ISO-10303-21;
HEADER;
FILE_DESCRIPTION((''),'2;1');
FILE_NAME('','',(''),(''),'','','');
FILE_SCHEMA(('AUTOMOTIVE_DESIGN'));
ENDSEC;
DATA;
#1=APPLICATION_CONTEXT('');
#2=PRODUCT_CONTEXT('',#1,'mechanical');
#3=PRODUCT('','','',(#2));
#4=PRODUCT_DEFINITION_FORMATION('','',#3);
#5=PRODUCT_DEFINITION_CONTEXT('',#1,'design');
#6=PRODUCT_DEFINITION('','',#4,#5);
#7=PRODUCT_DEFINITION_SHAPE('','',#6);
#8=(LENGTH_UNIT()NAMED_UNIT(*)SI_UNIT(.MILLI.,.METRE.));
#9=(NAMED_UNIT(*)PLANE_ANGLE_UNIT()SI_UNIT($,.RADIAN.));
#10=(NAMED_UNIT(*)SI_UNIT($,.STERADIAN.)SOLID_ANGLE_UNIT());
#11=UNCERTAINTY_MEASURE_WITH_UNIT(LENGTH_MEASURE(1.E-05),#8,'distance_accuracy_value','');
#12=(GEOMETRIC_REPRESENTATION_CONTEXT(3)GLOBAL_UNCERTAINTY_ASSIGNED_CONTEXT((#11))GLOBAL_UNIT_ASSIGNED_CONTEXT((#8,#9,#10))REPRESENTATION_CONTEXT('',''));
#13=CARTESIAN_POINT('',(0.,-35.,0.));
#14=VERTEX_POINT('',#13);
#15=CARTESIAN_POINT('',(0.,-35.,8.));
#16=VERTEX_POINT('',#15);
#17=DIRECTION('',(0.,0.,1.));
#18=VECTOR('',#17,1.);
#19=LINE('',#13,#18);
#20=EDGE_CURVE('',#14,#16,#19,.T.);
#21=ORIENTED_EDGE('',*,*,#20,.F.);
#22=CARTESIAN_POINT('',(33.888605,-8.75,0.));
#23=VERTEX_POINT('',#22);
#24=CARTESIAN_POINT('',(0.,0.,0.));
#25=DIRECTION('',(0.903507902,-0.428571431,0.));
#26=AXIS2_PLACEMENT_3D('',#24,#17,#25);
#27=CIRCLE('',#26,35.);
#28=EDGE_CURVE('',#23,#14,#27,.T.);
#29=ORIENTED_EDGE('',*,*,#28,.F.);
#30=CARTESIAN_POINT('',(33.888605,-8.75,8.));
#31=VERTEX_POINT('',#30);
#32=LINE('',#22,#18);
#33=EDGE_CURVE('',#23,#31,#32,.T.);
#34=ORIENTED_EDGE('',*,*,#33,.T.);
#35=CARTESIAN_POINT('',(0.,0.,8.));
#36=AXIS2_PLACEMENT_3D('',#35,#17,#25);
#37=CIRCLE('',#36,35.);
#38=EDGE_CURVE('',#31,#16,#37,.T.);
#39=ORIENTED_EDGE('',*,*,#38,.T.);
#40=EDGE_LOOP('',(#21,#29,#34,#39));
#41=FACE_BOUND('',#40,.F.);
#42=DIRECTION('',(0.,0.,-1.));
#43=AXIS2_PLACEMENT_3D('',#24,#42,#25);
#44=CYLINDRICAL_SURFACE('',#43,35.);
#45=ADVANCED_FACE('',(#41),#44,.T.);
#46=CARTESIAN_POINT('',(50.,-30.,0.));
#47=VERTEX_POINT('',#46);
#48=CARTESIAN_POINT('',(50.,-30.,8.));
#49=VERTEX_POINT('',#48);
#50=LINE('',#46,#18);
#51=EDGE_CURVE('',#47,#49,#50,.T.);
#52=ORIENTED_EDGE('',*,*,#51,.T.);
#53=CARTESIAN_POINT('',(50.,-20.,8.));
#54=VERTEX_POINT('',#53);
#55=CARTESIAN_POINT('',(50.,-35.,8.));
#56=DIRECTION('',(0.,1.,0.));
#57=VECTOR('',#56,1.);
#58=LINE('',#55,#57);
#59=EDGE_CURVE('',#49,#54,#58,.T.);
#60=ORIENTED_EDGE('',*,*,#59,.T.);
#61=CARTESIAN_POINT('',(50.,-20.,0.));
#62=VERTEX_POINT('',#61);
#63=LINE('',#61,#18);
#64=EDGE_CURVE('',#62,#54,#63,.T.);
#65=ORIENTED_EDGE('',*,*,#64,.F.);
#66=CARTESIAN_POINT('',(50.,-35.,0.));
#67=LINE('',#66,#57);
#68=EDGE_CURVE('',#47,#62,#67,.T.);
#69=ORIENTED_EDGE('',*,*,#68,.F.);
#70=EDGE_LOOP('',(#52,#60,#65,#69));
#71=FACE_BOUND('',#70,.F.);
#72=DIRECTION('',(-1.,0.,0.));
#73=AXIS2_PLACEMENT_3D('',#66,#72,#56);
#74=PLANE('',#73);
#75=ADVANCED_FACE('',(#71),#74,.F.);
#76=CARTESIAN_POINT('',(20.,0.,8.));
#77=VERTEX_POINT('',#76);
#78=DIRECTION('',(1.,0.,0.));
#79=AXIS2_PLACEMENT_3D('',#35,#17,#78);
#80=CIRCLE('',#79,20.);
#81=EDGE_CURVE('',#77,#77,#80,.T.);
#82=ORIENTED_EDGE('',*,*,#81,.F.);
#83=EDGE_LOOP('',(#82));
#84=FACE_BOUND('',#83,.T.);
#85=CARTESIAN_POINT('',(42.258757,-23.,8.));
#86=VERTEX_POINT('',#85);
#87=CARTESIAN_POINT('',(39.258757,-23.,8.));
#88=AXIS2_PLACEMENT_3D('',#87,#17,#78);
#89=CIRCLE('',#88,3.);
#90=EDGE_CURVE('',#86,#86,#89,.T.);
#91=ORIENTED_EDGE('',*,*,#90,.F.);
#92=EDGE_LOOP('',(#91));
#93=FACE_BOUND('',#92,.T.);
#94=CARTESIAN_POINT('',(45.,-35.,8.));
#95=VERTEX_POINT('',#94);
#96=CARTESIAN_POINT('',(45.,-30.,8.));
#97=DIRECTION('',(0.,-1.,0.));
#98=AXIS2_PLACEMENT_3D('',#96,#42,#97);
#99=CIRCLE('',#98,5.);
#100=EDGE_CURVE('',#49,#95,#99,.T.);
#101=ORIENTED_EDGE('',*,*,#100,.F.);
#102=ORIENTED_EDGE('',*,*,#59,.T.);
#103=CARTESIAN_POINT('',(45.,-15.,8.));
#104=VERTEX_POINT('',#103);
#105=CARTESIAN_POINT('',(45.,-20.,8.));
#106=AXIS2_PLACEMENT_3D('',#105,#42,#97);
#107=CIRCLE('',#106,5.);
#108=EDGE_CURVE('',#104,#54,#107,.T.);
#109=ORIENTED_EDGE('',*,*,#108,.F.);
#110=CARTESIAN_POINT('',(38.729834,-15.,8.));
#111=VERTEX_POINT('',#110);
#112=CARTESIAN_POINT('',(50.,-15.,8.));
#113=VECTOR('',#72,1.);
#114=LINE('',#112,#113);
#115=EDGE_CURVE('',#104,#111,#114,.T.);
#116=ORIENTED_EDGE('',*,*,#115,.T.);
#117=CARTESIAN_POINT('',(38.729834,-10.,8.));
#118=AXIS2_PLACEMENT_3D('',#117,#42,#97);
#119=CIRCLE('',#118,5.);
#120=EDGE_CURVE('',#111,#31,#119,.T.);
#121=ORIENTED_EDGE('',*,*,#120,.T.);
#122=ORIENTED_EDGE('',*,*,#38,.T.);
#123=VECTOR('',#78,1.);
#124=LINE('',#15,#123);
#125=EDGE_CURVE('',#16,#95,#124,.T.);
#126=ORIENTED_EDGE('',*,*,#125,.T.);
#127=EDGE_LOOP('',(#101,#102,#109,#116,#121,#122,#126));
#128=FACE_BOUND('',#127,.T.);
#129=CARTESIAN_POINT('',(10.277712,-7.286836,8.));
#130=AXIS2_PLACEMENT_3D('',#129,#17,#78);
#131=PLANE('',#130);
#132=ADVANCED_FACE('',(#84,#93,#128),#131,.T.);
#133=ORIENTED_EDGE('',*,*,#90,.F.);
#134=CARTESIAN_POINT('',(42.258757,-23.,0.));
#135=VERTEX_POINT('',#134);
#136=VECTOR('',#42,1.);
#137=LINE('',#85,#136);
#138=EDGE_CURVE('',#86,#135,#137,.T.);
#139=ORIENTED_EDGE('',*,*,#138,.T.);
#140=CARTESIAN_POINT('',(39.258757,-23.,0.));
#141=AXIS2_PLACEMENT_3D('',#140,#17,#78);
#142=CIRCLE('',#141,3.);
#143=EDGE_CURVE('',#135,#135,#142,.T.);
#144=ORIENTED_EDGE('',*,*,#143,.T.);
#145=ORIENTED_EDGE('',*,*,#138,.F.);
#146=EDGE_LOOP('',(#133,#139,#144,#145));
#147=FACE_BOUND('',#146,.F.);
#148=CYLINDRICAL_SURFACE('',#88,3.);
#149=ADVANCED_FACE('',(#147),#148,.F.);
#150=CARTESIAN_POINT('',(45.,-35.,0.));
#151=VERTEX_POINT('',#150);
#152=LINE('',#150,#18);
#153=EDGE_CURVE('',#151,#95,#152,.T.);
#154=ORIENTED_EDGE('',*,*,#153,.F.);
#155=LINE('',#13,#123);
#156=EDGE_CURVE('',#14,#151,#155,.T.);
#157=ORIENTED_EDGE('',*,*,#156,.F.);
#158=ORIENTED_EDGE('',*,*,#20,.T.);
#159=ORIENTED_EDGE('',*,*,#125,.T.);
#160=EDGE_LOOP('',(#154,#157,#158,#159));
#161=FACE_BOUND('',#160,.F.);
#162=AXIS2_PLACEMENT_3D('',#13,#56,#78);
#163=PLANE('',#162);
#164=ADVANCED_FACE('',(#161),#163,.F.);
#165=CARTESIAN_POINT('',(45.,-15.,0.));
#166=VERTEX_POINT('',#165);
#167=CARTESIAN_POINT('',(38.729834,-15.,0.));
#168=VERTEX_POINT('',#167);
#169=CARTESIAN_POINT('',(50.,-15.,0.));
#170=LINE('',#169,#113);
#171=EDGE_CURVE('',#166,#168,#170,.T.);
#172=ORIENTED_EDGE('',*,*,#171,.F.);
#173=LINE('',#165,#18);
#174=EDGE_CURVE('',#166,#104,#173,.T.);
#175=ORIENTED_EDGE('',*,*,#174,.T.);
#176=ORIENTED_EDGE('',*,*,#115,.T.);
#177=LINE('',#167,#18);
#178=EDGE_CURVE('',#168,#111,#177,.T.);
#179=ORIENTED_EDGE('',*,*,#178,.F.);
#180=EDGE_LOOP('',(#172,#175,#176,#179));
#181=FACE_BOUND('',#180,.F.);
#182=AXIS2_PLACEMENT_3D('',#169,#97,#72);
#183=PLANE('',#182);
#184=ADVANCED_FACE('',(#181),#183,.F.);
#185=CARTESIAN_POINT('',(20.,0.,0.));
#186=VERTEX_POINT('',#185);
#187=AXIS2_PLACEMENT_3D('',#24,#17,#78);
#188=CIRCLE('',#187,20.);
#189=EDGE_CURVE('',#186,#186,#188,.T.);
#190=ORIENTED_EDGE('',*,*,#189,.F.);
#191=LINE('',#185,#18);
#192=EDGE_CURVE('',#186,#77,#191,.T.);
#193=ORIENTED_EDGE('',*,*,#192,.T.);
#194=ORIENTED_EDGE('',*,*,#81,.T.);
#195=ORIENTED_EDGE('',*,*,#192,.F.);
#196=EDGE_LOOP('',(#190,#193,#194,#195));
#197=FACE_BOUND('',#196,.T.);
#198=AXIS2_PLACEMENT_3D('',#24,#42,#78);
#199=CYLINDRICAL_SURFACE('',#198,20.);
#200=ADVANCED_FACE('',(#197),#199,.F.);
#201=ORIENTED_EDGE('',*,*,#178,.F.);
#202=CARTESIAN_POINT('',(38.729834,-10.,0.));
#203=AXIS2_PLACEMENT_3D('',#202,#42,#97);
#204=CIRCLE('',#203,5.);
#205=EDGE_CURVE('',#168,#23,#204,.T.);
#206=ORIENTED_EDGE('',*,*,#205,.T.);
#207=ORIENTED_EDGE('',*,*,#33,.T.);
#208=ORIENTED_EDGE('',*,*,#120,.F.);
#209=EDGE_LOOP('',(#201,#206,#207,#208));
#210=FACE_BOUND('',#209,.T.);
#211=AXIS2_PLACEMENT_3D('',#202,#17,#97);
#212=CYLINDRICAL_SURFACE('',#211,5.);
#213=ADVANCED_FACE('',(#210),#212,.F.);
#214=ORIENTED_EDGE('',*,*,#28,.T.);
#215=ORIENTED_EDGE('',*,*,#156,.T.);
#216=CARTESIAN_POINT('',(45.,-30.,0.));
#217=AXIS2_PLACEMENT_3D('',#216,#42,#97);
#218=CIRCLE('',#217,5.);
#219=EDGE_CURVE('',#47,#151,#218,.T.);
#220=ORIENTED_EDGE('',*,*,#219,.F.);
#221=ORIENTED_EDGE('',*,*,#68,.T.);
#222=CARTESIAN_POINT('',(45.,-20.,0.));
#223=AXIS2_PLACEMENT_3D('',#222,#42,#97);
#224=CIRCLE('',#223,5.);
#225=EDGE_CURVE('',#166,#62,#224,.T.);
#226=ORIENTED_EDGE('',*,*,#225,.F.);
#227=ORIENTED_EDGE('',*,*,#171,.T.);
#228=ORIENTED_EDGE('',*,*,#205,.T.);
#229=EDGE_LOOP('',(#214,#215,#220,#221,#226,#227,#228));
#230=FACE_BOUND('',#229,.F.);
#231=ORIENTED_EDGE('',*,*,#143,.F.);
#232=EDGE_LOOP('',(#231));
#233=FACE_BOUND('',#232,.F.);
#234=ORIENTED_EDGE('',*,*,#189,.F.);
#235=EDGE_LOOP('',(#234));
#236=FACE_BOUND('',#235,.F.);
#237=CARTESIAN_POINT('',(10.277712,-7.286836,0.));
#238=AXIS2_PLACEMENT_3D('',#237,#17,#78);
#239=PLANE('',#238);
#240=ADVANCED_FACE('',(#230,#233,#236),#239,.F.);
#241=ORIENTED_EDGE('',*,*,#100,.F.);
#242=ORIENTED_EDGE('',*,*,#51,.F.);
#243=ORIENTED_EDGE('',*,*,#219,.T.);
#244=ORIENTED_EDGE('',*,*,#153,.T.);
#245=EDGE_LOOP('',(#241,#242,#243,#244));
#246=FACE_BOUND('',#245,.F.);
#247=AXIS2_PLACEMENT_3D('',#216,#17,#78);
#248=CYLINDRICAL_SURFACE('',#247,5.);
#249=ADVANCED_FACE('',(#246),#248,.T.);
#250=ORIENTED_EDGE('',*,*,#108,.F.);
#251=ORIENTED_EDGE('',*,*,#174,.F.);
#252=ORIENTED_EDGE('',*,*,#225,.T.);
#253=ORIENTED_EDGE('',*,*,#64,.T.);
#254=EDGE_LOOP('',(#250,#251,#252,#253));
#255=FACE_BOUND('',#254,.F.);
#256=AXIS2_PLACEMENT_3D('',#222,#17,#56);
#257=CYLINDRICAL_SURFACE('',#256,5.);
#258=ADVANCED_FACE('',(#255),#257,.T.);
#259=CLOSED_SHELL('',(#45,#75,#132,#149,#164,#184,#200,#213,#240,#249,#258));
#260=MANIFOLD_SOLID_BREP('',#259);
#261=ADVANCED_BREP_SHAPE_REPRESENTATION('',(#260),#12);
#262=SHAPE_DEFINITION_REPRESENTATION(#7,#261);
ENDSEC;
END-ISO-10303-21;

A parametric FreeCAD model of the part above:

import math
import FreeCAD as App
import Part
import Sketcher

V = App.Vector


def edges_at(feature, points):
    """Names of the edges that pass closest to the given points."""
    edges = feature.Shape.Edges
    near = lambda p: min(range(len(edges)), key=lambda i: edges[i].distToShape(Part.Vertex(*p))[0])
    return sorted({f"Edge{near(p) + 1}" for p in points})

doc = App.newDocument("Part")
body = doc.addObject("PartDesign::Body", "Body")

# Sketch on XY plane
sketch1 = body.newObject("Sketcher::SketchObject", "Sketch")
sketch1.AttachmentSupport = (doc.getObject("XY_Plane"), [""])
sketch1.MapMode = "FlatFace"
sketch1.addGeometry(Part.LineSegment(V(50, -15, 0), V(31.622777, -15, 0)), False)
sketch1.addGeometry(Part.ArcOfCircle(Part.Circle(V(0, 0, 0), V(0, 0, 1), 35), math.radians(-25.376934), math.radians(269.999999)), False)
sketch1.addGeometry(Part.LineSegment(V(0, -35, 0), V(50, -35, 0)), False)
sketch1.addGeometry(Part.LineSegment(V(50, -35, 0), V(50, -15, 0)), False)
sketch1.addGeometry(Part.Circle(V(0, 0, 0), V(0, 0, 1), 20), False)
sketch1.addConstraint(Sketcher.Constraint("Coincident", 0, 2, 1, 1))
sketch1.addConstraint(Sketcher.Constraint("Tangent", 1, 2, 2, 1))
sketch1.addConstraint(Sketcher.Constraint("Coincident", 2, 2, 3, 1))
sketch1.addConstraint(Sketcher.Constraint("Coincident", 3, 2, 0, 1))
sketch1.addConstraint(Sketcher.Constraint("Horizontal", 0))
sketch1.addConstraint(Sketcher.Constraint("Horizontal", 2))
sketch1.addConstraint(Sketcher.Constraint("Vertical", 3))
sketch1.addConstraint(Sketcher.Constraint("Coincident", 1, 3, -1, 1))
sketch1.addConstraint(Sketcher.Constraint("Coincident", 4, 3, -1, 1))
sketch1.addConstraint(Sketcher.Constraint("Diameter", 4, 40.0))
sketch1.addConstraint(Sketcher.Constraint("Radius", 1, 35.0))
sketch1.addConstraint(Sketcher.Constraint("DistanceX", 2, 1, 2, 2, 50.0))
sketch1.addConstraint(Sketcher.Constraint("DistanceY", 3, 1, 3, 2, 20.0))
pad1 = body.newObject("PartDesign::Pad", "Pad")
pad1.Profile = sketch1
pad1.Length = 8
doc.recompute()

fillet = body.newObject("PartDesign::Fillet", "Fillet")
fillet.Base = (pad1, edges_at(pad1, [(31.623, -15, 4), (50, -15, 4), (50, -35, 4)]))
fillet.Radius = 5

# Sketch on XY plane
sketch2 = body.newObject("Sketcher::SketchObject", "Sketch001")
sketch2.AttachmentSupport = (doc.getObject("XY_Plane"), [""])
sketch2.MapMode = "FlatFace"
sketch2.AttachmentOffset = App.Placement(V(0, 0, 8), App.Rotation())
sketch2.addGeometry(Part.Circle(V(39.258757, -23, 0), V(0, 0, 1), 3), False)
sketch2.addConstraint(Sketcher.Constraint("Diameter", 0, 6.0))
sketch2.addConstraint(Sketcher.Constraint("DistanceY", 0, 3, -1, 1, 23.0))
sketch2.addConstraint(Sketcher.Constraint("DistanceX", -1, 1, 0, 3, 39.258757))
pocket1 = body.newObject("PartDesign::Pocket", "Pocket")
pocket1.Profile = sketch2
pocket1.Type = "ThroughAll"

doc.recompute()
